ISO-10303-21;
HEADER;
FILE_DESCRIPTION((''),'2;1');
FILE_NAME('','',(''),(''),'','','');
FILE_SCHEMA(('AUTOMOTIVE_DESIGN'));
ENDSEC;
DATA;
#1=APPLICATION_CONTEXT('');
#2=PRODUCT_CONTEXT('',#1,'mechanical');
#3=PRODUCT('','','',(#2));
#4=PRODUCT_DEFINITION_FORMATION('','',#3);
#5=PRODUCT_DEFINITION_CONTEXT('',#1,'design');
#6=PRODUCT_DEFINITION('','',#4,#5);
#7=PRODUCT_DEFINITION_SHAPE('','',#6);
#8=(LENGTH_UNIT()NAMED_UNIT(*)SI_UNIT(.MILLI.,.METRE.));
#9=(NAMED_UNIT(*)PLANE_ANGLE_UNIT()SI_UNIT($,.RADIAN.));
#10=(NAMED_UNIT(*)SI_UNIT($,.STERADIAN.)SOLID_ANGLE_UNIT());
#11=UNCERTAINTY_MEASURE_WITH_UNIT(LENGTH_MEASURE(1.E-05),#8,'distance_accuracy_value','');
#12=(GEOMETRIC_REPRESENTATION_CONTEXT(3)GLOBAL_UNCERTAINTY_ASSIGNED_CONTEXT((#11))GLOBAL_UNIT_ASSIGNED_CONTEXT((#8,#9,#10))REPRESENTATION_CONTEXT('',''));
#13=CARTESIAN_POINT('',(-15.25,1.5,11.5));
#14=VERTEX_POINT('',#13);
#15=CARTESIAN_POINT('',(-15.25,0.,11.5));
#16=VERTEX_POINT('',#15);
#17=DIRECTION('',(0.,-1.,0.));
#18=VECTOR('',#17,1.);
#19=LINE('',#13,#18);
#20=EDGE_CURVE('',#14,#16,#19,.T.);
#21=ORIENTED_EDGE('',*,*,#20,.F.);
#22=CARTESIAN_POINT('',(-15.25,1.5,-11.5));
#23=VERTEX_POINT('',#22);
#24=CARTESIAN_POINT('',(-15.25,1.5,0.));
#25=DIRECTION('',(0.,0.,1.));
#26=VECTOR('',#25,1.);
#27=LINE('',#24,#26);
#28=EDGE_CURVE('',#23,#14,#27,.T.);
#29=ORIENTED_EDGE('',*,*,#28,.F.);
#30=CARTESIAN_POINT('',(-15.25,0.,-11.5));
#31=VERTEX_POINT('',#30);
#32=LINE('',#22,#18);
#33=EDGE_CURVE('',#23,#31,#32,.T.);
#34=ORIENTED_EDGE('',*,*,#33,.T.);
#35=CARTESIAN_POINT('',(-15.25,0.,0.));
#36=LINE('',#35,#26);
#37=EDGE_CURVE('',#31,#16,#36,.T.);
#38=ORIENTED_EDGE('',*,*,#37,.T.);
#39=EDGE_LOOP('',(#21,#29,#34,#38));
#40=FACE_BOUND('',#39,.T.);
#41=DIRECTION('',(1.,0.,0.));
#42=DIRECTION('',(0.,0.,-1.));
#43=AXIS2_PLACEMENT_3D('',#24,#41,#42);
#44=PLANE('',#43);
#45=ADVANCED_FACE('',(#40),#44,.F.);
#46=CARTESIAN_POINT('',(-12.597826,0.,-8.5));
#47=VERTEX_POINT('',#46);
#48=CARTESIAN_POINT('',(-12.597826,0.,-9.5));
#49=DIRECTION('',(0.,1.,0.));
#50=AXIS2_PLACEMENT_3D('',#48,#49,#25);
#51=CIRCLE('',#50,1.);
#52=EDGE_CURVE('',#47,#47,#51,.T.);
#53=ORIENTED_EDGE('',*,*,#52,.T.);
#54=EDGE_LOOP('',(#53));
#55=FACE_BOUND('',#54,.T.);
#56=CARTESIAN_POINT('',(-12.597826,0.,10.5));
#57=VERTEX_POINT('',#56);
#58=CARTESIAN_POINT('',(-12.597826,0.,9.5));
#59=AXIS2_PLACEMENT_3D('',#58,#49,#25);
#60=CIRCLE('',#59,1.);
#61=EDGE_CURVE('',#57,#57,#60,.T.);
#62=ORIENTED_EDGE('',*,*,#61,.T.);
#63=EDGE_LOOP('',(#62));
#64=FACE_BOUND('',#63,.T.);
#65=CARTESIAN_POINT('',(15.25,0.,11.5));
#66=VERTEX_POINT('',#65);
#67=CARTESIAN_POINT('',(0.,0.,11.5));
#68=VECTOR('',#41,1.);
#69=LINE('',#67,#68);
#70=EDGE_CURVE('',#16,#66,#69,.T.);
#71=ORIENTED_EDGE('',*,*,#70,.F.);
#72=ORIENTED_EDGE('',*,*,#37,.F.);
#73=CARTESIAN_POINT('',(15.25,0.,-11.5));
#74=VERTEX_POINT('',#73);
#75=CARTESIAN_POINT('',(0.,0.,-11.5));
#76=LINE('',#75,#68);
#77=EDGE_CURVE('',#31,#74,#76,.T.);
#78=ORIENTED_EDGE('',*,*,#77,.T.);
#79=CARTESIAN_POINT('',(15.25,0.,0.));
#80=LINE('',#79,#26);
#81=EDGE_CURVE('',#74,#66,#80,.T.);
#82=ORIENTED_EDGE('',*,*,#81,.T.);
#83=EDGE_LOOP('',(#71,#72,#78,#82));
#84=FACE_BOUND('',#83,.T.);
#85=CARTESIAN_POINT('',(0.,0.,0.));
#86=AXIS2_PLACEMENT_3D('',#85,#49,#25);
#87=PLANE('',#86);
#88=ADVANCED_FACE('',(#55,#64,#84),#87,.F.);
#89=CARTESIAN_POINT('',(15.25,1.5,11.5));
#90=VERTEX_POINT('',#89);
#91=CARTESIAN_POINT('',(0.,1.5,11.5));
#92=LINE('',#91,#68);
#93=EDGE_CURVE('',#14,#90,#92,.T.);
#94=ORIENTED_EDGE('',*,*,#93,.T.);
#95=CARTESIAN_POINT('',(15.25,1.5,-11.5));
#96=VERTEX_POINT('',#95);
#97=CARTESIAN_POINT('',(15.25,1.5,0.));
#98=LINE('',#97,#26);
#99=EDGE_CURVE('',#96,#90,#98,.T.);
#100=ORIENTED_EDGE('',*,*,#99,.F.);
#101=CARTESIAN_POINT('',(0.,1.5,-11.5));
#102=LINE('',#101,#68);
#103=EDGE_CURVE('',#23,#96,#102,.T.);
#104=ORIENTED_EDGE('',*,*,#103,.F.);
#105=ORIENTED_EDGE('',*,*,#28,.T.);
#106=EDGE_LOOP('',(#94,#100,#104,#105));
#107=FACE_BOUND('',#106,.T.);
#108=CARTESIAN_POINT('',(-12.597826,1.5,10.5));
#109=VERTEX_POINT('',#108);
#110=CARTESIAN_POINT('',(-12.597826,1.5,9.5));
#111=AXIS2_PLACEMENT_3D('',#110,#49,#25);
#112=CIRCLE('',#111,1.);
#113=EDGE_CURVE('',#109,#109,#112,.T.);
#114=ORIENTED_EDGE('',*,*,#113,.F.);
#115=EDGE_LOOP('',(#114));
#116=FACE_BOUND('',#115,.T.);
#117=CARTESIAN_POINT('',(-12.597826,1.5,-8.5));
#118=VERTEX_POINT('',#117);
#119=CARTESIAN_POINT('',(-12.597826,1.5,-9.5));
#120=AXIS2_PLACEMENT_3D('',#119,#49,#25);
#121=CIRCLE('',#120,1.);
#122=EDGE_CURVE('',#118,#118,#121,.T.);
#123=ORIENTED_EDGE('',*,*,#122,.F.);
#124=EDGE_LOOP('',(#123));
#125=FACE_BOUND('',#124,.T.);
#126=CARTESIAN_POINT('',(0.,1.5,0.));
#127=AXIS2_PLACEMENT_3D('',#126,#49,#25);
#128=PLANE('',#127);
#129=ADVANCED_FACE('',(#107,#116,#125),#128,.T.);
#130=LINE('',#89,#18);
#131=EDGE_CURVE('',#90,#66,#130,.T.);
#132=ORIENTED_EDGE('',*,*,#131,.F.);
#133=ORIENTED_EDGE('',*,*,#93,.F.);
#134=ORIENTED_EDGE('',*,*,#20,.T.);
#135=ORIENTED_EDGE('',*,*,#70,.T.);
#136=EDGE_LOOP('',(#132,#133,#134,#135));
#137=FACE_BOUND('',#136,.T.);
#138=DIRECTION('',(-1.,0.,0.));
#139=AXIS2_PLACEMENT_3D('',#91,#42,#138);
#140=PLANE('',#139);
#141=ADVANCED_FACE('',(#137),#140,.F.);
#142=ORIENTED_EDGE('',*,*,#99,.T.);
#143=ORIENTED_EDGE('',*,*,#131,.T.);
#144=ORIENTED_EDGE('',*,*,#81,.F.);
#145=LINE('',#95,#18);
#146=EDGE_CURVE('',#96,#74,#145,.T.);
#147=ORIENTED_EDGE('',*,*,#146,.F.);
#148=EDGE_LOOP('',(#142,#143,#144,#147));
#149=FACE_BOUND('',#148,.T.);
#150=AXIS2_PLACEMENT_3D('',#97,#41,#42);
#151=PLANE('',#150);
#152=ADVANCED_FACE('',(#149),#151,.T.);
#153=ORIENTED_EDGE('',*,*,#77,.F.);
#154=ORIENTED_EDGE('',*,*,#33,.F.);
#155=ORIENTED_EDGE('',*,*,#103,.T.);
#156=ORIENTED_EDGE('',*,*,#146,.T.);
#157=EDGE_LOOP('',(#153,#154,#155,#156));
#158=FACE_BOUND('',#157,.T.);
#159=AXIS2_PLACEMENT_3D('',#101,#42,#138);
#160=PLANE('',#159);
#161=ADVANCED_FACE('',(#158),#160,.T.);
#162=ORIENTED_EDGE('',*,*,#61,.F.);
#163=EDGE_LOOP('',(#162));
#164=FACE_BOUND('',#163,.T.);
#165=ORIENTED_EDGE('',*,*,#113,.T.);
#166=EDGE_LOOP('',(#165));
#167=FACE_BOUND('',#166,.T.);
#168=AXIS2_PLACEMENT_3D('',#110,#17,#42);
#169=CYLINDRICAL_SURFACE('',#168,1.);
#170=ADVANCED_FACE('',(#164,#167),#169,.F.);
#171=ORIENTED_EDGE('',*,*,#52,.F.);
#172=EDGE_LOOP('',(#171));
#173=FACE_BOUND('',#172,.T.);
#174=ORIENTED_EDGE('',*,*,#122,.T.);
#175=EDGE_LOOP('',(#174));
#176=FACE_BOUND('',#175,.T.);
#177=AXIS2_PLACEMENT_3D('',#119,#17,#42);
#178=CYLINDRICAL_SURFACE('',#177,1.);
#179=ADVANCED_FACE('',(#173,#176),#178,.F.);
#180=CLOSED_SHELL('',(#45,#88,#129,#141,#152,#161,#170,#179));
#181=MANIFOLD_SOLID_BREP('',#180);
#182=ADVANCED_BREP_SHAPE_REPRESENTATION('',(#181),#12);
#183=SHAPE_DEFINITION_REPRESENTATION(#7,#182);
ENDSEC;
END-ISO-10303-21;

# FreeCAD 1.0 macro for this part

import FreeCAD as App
import Part
import Sketcher

doc = App.newDocument("Part")
body = doc.addObject("PartDesign::Body", "Body")

# Sketch on XZ plane
sketch1 = doc.addObject("Sketcher::SketchObject", "Sketch")
body.addObject(sketch1)
sketch1.AttachmentSupport = (doc.XZ_Plane, [""])
sketch1.MapMode = "FlatFace"
sketch1.addGeometry(Part.LineSegment(App.Vector(-15.25, -11.5, 0), App.Vector(-15.25, 11.5, 0)), False)
sketch1.addGeometry(Part.LineSegment(App.Vector(-15.25, 11.5, 0), App.Vector(15.25, 11.5, 0)), False)
sketch1.addGeometry(Part.LineSegment(App.Vector(15.25, 11.5, 0), App.Vector(15.25, -11.5, 0)), False)
sketch1.addGeometry(Part.LineSegment(App.Vector(15.25, -11.5, 0), App.Vector(-15.25, -11.5, 0)), False)
sketch1.addGeometry(Part.Circle(App.Vector(-12.597826, 9.5, 0), App.Vector(0, 0, 1), 1), False)
sketch1.addGeometry(Part.Circle(App.Vector(-12.597826, -9.5, 0), App.Vector(0, 0, 1), 1), False)
sketch1.addConstraint(Sketcher.Constraint("Coincident", 0, 2, 1, 1))
sketch1.addConstraint(Sketcher.Constraint("Coincident", 1, 2, 2, 1))
sketch1.addConstraint(Sketcher.Constraint("Coincident", 2, 2, 3, 1))
sketch1.addConstraint(Sketcher.Constraint("Coincident", 3, 2, 0, 1))
sketch1.addConstraint(Sketcher.Constraint("Vertical", 0))
sketch1.addConstraint(Sketcher.Constraint("Horizontal", 1))
sketch1.addConstraint(Sketcher.Constraint("Vertical", 2))
sketch1.addConstraint(Sketcher.Constraint("Horizontal", 3))
sketch1.addConstraint(Sketcher.Constraint("Equal", 4, 5))
sketch1.addConstraint(Sketcher.Constraint("Symmetric", 0, 2, 2, 2, -1, 1))
sketch1.addConstraint(Sketcher.Constraint("Symmetric", 4, 3, 5, 3, -1))
sketch1.addConstraint(Sketcher.Constraint("Diameter", 4, 2.0))
sketch1.addConstraint(Sketcher.Constraint("DistanceY", 0, 1, 0, 2, 23.0))
sketch1.addConstraint(Sketcher.Constraint("DistanceX", 1, 1, 1, 2, 30.5))
sketch1.addConstraint(Sketcher.Constraint("DistanceY", 5, 3, 4, 3, 19.0))
sketch1.addConstraint(Sketcher.Constraint("DistanceX", 4, 3, -1, 1, 12.597826))
pad1 = doc.addObject("PartDesign::Pad", "Pad")
body.addObject(pad1)
pad1.Profile = sketch1
pad1.Length = 1.5
pad1.Reversed = True

doc.recompute()
